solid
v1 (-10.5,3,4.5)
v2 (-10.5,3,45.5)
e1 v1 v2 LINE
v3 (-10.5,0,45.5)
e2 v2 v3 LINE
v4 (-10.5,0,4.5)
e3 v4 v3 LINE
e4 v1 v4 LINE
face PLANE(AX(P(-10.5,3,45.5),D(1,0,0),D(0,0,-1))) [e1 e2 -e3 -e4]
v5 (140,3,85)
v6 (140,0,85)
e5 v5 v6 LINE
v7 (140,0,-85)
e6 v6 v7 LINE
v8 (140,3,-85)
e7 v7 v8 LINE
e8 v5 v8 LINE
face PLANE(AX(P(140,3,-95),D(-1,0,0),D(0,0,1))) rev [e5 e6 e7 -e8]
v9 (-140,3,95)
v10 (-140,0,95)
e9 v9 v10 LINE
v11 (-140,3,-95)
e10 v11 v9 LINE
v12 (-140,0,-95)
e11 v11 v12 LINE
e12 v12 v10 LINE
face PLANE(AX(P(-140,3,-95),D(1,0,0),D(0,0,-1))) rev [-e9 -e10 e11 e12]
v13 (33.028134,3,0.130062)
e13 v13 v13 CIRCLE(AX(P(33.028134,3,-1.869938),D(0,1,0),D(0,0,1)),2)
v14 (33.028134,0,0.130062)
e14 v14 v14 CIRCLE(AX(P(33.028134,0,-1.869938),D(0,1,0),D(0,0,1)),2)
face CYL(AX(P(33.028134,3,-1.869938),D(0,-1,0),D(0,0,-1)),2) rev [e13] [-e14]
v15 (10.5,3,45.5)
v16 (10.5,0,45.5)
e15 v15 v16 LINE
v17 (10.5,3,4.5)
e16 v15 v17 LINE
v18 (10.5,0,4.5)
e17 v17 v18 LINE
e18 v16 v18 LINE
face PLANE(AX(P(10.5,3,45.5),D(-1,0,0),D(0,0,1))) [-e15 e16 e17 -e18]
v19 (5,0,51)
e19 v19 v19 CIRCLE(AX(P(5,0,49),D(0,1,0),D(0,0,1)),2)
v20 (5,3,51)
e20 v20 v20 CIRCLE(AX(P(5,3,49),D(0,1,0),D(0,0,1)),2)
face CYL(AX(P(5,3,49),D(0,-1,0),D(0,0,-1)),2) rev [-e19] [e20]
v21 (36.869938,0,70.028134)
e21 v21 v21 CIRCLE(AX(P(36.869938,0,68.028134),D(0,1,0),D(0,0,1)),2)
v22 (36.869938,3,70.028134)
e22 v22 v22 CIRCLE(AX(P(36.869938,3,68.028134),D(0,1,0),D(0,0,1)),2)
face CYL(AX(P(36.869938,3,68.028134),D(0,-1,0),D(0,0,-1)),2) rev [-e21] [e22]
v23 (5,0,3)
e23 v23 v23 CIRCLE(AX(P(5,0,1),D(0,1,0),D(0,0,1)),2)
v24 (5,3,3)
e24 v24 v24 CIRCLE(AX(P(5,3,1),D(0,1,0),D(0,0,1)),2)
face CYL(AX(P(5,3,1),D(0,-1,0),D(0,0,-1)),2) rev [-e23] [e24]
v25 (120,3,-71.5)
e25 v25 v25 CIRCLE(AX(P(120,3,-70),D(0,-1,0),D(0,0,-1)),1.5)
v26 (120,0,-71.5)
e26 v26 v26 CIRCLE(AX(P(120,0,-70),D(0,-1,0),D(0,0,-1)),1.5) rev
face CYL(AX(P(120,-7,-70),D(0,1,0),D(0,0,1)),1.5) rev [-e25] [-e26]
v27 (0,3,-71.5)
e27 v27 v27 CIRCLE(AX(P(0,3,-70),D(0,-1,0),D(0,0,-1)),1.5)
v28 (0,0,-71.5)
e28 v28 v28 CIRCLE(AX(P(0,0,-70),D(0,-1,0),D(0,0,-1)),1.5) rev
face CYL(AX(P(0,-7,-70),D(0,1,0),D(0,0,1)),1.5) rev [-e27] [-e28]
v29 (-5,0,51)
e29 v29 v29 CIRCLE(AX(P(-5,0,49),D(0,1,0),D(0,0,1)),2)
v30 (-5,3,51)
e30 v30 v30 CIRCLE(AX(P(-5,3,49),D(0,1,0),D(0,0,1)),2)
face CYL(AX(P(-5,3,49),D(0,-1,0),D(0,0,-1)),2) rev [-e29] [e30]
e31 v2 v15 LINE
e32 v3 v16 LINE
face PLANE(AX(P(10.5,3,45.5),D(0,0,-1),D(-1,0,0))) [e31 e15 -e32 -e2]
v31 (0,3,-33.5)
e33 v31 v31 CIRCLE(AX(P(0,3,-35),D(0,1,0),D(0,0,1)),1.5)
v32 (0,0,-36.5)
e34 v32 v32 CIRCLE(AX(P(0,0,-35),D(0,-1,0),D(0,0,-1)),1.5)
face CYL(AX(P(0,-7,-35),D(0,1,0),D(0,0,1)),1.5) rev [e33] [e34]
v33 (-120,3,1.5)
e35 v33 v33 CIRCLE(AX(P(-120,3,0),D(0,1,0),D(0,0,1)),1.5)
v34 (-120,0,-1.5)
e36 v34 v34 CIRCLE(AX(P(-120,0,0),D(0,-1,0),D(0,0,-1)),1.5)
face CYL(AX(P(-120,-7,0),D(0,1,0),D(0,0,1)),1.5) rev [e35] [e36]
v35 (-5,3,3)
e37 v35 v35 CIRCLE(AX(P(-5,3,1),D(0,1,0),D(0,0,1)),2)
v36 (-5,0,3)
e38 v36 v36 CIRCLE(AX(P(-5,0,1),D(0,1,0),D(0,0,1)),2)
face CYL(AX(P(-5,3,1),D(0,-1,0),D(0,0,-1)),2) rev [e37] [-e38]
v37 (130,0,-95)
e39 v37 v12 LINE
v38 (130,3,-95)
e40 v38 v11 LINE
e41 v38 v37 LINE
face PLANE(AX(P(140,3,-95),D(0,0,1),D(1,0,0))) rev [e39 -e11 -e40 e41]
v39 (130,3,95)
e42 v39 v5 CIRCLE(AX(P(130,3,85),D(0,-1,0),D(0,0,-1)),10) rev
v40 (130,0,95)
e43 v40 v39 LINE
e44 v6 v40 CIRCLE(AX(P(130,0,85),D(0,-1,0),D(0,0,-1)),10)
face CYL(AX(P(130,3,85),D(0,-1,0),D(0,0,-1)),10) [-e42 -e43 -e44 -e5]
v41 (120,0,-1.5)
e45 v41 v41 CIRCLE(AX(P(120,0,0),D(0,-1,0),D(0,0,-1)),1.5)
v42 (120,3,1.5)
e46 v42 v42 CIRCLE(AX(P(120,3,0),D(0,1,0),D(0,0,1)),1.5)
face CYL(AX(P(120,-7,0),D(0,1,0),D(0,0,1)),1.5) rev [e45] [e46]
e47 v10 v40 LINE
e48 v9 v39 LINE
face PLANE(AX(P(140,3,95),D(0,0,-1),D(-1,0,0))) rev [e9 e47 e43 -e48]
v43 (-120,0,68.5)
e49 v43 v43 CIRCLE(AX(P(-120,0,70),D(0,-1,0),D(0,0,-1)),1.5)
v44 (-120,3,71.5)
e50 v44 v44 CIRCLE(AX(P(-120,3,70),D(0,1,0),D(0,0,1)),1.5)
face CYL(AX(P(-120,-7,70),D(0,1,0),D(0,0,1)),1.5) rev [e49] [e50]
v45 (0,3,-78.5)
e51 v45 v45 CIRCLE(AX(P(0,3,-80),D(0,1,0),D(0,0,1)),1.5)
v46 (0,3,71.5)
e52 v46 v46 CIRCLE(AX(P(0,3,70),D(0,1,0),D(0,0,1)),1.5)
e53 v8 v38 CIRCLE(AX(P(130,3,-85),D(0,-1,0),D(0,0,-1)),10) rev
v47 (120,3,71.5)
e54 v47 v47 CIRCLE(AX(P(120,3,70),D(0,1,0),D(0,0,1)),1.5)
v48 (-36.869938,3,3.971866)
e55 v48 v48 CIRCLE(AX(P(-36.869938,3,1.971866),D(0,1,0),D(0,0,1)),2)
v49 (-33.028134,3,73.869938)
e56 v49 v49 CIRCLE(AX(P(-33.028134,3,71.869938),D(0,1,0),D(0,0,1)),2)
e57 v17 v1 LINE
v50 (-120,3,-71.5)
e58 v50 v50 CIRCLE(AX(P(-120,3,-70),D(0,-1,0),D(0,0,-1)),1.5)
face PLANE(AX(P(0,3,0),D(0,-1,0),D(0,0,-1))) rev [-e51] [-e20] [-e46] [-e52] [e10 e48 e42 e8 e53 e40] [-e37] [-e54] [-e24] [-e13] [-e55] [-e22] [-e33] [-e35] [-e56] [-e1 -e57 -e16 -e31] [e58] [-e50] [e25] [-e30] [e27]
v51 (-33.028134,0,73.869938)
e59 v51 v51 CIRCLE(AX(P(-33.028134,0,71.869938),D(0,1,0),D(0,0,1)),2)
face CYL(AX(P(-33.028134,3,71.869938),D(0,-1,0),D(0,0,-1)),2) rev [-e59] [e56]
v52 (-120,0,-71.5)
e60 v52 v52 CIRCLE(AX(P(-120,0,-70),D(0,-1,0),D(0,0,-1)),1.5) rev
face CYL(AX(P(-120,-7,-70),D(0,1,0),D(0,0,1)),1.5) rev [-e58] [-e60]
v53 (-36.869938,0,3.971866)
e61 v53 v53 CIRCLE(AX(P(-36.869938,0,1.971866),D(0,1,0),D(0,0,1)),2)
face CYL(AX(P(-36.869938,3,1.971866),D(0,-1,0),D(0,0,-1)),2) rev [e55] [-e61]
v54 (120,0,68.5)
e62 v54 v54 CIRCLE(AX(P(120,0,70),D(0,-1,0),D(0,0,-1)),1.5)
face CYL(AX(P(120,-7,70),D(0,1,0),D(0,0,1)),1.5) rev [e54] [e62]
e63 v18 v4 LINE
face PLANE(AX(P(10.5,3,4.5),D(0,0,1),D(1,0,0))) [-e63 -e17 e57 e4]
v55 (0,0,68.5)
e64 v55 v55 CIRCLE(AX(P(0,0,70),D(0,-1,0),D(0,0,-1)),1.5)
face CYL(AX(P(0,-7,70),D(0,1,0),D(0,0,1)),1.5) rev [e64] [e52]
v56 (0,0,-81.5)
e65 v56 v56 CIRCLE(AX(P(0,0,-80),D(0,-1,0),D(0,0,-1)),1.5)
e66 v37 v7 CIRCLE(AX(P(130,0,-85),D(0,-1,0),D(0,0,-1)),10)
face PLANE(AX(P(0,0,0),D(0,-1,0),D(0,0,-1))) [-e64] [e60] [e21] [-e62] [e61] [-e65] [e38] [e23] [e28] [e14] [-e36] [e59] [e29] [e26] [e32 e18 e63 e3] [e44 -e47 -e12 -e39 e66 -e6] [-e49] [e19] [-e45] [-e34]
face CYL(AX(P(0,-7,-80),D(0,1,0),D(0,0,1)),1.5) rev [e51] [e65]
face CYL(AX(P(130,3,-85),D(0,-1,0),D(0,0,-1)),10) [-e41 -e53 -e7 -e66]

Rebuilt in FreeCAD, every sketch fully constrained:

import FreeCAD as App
import Part
import Sketcher
from FreeCAD import Vector


def edges_at(feature, points):
    """Names of the edges that pass closest to the given points."""
    edges = feature.Shape.Edges
    near = lambda p: min(range(len(edges)), key=lambda i: edges[i].distToShape(Part.Vertex(*p))[0])
    return sorted({f"Edge{near(p) + 1}" for p in points})


def add_polygon(sketch, points):
    """Adds a closed chain of lines whose ends are joined by coincident constraints."""
    first, n = sketch.GeometryCount, len(points)
    for a, b in zip(points, points[1:] + points[:1]):
        sketch.addGeometry(Part.LineSegment(App.Vector(*a, 0), App.Vector(*b, 0)), False)
    for i in range(n):
        sketch.addConstraint(Sketcher.Constraint("Coincident", first + i, 2, first + (i + 1) % n, 1))

doc = App.newDocument("Part")
body = doc.addObject("PartDesign::Body", "Body")

# Sketch on XZ plane
sketch1 = doc.addObject("Sketcher::SketchObject", "Sketch")
body.addObject(sketch1)
sketch1.AttachmentSupport = (doc.XZ_Plane, [""])
sketch1.MapMode = "FlatFace"
add_polygon(sketch1, [(-140, -95), (-140, 95), (140, 95), (140, -95)])  # lines 0-3
sketch1.addGeometry(Part.Circle(Vector(-33.028134, 71.869938, 0), Vector(0, 0, 1), 2), False)  # 4
sketch1.addGeometry(Part.Circle(Vector(-5, 49, 0), Vector(0, 0, 1), 2), False)  # 5
sketch1.addGeometry(Part.Circle(Vector(36.869938, 68.028134, 0), Vector(0, 0, 1), 2), False)  # 6
sketch1.addGeometry(Part.Circle(Vector(5, 49, 0), Vector(0, 0, 1), 2), False)  # 7
sketch1.addGeometry(Part.Circle(Vector(-36.869938, 1.971866, 0), Vector(0, 0, 1), 2), False)  # 8
sketch1.addGeometry(Part.Circle(Vector(-5, 1, 0), Vector(0, 0, 1), 2), False)  # 9
add_polygon(sketch1, [(10.5, 45.5), (-10.5, 45.5), (-10.5, 4.5), (10.5, 4.5)])  # lines 10-13
sketch1.addGeometry(Part.Circle(Vector(5, 1, 0), Vector(0, 0, 1), 2), False)  # 14
sketch1.addGeometry(Part.Circle(Vector(33.028134, -1.869938, 0), Vector(0, 0, 1), 2), False)  # 15
sketch1.addConstraint(Sketcher.Constraint("Vertical", 0))
sketch1.addConstraint(Sketcher.Constraint("Horizontal", 1))
sketch1.addConstraint(Sketcher.Constraint("Vertical", 2))
sketch1.addConstraint(Sketcher.Constraint("Horizontal", 3))
sketch1.addConstraint(Sketcher.Constraint("Horizontal", 10))
sketch1.addConstraint(Sketcher.Constraint("Vertical", 11))
sketch1.addConstraint(Sketcher.Constraint("Horizontal", 12))
sketch1.addConstraint(Sketcher.Constraint("Vertical", 13))
sketch1.addConstraint(Sketcher.Constraint("Equal", 4, 5))
sketch1.addConstraint(Sketcher.Constraint("Equal", 5, 6))
sketch1.addConstraint(Sketcher.Constraint("Equal", 6, 7))
sketch1.addConstraint(Sketcher.Constraint("Equal", 7, 8))
sketch1.addConstraint(Sketcher.Constraint("Equal", 8, 9))
sketch1.addConstraint(Sketcher.Constraint("Equal", 9, 14))
sketch1.addConstraint(Sketcher.Constraint("Equal", 14, 15))
sketch1.addConstraint(Sketcher.Constraint("Symmetric", 0, 2, 2, 2, -1, 1))
sketch1.addConstraint(Sketcher.Constraint("Symmetric", 5, 3, 7, 3, -2))
sketch1.addConstraint(Sketcher.Constraint("Symmetric", 9, 3, 14, 3, -2))
sketch1.addConstraint(Sketcher.Constraint("Vertical", 5, 3, 9, 3))
sketch1.addConstraint(Sketcher.Constraint("Diameter", 4, 4.0))
sketch1.addConstraint(Sketcher.Constraint("DistanceX", 1, 1, 1, 2, 280.0))
sketch1.addConstraint(Sketcher.Constraint("DistanceX", 10, 2, 10, 1, 21.0))
sketch1.addConstraint(Sketcher.Constraint("DistanceY", 0, 1, 0, 2, 190.0))
sketch1.addConstraint(Sketcher.Constraint("DistanceY", 11, 2, 11, 1, 41.0))
sketch1.addConstraint(Sketcher.Constraint("DistanceX", 5, 3, -1, 1, 5.0))
sketch1.addConstraint(Sketcher.Constraint("DistanceY", -1, 1, 5, 3, 49.0))
sketch1.addConstraint(Sketcher.Constraint("DistanceY", -1, 1, 9, 3, 1.0))
sketch1.addConstraint(Sketcher.Constraint("DistanceX", 10, 2, -1, 1, 10.5))
sketch1.addConstraint(Sketcher.Constraint("DistanceY", -1, 1, 10, 2, 45.5))
sketch1.addConstraint(Sketcher.Constraint("DistanceY", -1, 1, 4, 3, 71.869938))
sketch1.addConstraint(Sketcher.Constraint("DistanceX", -1, 1, 6, 3, 36.869938))
sketch1.addConstraint(Sketcher.Constraint("DistanceX", 8, 3, -1, 1, 36.869938))
sketch1.addConstraint(Sketcher.Constraint("DistanceY", 15, 3, -1, 1, 1.869938))
sketch1.addConstraint(Sketcher.Constraint("DistanceY", 8, 3, 6, 3, 66.056269))
sketch1.addConstraint(Sketcher.Constraint("DistanceX", 4, 3, -1, 1, 33.028134))
sketch1.addConstraint(Sketcher.Constraint("DistanceY", -1, 1, 6, 3, 68.028134))
sketch1.addConstraint(Sketcher.Constraint("DistanceX", -1, 1, 15, 3, 33.028134))
pad1 = doc.addObject("PartDesign::Pad", "Pad")
body.addObject(pad1)
pad1.Profile = sketch1
pad1.Length = 3
pad1.Reversed = True
doc.recompute()

fillet = doc.addObject("PartDesign::Fillet", "Fillet")
body.addObject(fillet)
fillet.Base = (pad1, edges_at(pad1, [(140, 1.5, 95), (140, 1.5, -95)]))
fillet.Radius = 10

# Sketch on XZ plane
sketch2 = doc.addObject("Sketcher::SketchObject", "Sketch001")
body.addObject(sketch2)
sketch2.AttachmentSupport = (doc.XZ_Plane, [""])
sketch2.MapMode = "FlatFace"
sketch2.AttachmentOffset = App.Placement(Vector(0, 0, -3), App.Rotation())
sketch2.addGeometry(Part.Circle(Vector(120, 70, 0), Vector(0, 0, 1), 1.5), False)
sketch2.addGeometry(Part.Circle(Vector(0, 70, 0), Vector(0, 0, 1), 1.5), False)
sketch2.addGeometry(Part.Circle(Vector(-120, 70, 0), Vector(0, 0, 1), 1.5), False)
sketch2.addConstraint(Sketcher.Constraint("Equal", 0, 1))
sketch2.addConstraint(Sketcher.Constraint("Equal", 1, 2))
sketch2.addConstraint(Sketcher.Constraint("Symmetric", 0, 3, 2, 3, -2))
sketch2.addConstraint(Sketcher.Constraint("PointOnObject", 1, 3, -2))
sketch2.addConstraint(Sketcher.Constraint("Horizontal", 0, 3, 1, 3))
sketch2.addConstraint(Sketcher.Constraint("Diameter", 0, 3.0))
sketch2.addConstraint(Sketcher.Constraint("DistanceX", -1, 1, 0, 3, 120.0))
sketch2.addConstraint(Sketcher.Constraint("DistanceY", -1, 1, 0, 3, 70.0))
pocket1 = doc.addObject("PartDesign::Pocket", "Pocket")
body.addObject(pocket1)
pocket1.Profile = sketch2
pocket1.Length = 10
pocket1.Reversed = True
doc.recompute()

mirrored = doc.addObject("PartDesign::Mirrored", "Mirrored")
body.addObject(mirrored)
mirrored.Originals = [pocket1]
mirrored.MirrorPlane = (doc.XY_Plane, [""])
body.Tip = mirrored

# Sketch on XZ plane
sketch3 = doc.addObject("Sketcher::SketchObject", "Sketch002")
body.addObject(sketch3)
sketch3.AttachmentSupport = (doc.XZ_Plane, [""])
sketch3.MapMode = "FlatFace"
sketch3.AttachmentOffset = App.Placement(Vector(0, 0, -3), App.Rotation())
sketch3.addGeometry(Part.Circle(Vector(120, 0, 0), Vector(0, 0, 1), 1.5), False)
sketch3.addGeometry(Part.Circle(Vector(-120, 0, 0), Vector(0, 0, 1), 1.5), False)
sketch3.addConstraint(Sketcher.Constraint("Equal", 0, 1))
sketch3.addConstraint(Sketcher.Constraint("Symmetric", 0, 3, 1, 3, -1, 1))
sketch3.addConstraint(Sketcher.Constraint("PointOnObject", 0, 3, -1))
sketch3.addConstraint(Sketcher.Constraint("Diameter", 0, 3.0))
sketch3.addConstraint(Sketcher.Constraint("DistanceX", -1, 1, 0, 3, 120.0))
pocket2 = doc.addObject("PartDesign::Pocket", "Pocket001")
body.addObject(pocket2)
pocket2.Profile = sketch3
pocket2.Length = 10
pocket2.Reversed = True

# Sketch on XZ plane
sketch4 = doc.addObject("Sketcher::SketchObject", "Sketch003")
body.addObject(sketch4)
sketch4.AttachmentSupport = (doc.XZ_Plane, [""])
sketch4.MapMode = "FlatFace"
sketch4.AttachmentOffset = App.Placement(Vector(0, 0, -3), App.Rotation())
sketch4.addGeometry(Part.Circle(Vector(0, -80, 0), Vector(0, 0, 1), 1.5), False)
sketch4.addGeometry(Part.Circle(Vector(0, -35, 0), Vector(0, 0, 1), 1.5), False)
sketch4.addConstraint(Sketcher.Constraint("Equal", 0, 1))
sketch4.addConstraint(Sketcher.Constraint("PointOnObject", 0, 3, -2))
sketch4.addConstraint(Sketcher.Constraint("PointOnObject", 1, 3, -2))
sketch4.addConstraint(Sketcher.Constraint("Diameter", 0, 3.0))
sketch4.addConstraint(Sketcher.Constraint("DistanceY", 0, 3, -1, 1, 80.0))
sketch4.addConstraint(Sketcher.Constraint("DistanceY", 1, 3, -1, 1, 35.0))
pocket3 = doc.addObject("PartDesign::Pocket", "Pocket002")
body.addObject(pocket3)
pocket3.Profile = sketch4
pocket3.Length = 10
pocket3.Reversed = True

doc.recompute()
